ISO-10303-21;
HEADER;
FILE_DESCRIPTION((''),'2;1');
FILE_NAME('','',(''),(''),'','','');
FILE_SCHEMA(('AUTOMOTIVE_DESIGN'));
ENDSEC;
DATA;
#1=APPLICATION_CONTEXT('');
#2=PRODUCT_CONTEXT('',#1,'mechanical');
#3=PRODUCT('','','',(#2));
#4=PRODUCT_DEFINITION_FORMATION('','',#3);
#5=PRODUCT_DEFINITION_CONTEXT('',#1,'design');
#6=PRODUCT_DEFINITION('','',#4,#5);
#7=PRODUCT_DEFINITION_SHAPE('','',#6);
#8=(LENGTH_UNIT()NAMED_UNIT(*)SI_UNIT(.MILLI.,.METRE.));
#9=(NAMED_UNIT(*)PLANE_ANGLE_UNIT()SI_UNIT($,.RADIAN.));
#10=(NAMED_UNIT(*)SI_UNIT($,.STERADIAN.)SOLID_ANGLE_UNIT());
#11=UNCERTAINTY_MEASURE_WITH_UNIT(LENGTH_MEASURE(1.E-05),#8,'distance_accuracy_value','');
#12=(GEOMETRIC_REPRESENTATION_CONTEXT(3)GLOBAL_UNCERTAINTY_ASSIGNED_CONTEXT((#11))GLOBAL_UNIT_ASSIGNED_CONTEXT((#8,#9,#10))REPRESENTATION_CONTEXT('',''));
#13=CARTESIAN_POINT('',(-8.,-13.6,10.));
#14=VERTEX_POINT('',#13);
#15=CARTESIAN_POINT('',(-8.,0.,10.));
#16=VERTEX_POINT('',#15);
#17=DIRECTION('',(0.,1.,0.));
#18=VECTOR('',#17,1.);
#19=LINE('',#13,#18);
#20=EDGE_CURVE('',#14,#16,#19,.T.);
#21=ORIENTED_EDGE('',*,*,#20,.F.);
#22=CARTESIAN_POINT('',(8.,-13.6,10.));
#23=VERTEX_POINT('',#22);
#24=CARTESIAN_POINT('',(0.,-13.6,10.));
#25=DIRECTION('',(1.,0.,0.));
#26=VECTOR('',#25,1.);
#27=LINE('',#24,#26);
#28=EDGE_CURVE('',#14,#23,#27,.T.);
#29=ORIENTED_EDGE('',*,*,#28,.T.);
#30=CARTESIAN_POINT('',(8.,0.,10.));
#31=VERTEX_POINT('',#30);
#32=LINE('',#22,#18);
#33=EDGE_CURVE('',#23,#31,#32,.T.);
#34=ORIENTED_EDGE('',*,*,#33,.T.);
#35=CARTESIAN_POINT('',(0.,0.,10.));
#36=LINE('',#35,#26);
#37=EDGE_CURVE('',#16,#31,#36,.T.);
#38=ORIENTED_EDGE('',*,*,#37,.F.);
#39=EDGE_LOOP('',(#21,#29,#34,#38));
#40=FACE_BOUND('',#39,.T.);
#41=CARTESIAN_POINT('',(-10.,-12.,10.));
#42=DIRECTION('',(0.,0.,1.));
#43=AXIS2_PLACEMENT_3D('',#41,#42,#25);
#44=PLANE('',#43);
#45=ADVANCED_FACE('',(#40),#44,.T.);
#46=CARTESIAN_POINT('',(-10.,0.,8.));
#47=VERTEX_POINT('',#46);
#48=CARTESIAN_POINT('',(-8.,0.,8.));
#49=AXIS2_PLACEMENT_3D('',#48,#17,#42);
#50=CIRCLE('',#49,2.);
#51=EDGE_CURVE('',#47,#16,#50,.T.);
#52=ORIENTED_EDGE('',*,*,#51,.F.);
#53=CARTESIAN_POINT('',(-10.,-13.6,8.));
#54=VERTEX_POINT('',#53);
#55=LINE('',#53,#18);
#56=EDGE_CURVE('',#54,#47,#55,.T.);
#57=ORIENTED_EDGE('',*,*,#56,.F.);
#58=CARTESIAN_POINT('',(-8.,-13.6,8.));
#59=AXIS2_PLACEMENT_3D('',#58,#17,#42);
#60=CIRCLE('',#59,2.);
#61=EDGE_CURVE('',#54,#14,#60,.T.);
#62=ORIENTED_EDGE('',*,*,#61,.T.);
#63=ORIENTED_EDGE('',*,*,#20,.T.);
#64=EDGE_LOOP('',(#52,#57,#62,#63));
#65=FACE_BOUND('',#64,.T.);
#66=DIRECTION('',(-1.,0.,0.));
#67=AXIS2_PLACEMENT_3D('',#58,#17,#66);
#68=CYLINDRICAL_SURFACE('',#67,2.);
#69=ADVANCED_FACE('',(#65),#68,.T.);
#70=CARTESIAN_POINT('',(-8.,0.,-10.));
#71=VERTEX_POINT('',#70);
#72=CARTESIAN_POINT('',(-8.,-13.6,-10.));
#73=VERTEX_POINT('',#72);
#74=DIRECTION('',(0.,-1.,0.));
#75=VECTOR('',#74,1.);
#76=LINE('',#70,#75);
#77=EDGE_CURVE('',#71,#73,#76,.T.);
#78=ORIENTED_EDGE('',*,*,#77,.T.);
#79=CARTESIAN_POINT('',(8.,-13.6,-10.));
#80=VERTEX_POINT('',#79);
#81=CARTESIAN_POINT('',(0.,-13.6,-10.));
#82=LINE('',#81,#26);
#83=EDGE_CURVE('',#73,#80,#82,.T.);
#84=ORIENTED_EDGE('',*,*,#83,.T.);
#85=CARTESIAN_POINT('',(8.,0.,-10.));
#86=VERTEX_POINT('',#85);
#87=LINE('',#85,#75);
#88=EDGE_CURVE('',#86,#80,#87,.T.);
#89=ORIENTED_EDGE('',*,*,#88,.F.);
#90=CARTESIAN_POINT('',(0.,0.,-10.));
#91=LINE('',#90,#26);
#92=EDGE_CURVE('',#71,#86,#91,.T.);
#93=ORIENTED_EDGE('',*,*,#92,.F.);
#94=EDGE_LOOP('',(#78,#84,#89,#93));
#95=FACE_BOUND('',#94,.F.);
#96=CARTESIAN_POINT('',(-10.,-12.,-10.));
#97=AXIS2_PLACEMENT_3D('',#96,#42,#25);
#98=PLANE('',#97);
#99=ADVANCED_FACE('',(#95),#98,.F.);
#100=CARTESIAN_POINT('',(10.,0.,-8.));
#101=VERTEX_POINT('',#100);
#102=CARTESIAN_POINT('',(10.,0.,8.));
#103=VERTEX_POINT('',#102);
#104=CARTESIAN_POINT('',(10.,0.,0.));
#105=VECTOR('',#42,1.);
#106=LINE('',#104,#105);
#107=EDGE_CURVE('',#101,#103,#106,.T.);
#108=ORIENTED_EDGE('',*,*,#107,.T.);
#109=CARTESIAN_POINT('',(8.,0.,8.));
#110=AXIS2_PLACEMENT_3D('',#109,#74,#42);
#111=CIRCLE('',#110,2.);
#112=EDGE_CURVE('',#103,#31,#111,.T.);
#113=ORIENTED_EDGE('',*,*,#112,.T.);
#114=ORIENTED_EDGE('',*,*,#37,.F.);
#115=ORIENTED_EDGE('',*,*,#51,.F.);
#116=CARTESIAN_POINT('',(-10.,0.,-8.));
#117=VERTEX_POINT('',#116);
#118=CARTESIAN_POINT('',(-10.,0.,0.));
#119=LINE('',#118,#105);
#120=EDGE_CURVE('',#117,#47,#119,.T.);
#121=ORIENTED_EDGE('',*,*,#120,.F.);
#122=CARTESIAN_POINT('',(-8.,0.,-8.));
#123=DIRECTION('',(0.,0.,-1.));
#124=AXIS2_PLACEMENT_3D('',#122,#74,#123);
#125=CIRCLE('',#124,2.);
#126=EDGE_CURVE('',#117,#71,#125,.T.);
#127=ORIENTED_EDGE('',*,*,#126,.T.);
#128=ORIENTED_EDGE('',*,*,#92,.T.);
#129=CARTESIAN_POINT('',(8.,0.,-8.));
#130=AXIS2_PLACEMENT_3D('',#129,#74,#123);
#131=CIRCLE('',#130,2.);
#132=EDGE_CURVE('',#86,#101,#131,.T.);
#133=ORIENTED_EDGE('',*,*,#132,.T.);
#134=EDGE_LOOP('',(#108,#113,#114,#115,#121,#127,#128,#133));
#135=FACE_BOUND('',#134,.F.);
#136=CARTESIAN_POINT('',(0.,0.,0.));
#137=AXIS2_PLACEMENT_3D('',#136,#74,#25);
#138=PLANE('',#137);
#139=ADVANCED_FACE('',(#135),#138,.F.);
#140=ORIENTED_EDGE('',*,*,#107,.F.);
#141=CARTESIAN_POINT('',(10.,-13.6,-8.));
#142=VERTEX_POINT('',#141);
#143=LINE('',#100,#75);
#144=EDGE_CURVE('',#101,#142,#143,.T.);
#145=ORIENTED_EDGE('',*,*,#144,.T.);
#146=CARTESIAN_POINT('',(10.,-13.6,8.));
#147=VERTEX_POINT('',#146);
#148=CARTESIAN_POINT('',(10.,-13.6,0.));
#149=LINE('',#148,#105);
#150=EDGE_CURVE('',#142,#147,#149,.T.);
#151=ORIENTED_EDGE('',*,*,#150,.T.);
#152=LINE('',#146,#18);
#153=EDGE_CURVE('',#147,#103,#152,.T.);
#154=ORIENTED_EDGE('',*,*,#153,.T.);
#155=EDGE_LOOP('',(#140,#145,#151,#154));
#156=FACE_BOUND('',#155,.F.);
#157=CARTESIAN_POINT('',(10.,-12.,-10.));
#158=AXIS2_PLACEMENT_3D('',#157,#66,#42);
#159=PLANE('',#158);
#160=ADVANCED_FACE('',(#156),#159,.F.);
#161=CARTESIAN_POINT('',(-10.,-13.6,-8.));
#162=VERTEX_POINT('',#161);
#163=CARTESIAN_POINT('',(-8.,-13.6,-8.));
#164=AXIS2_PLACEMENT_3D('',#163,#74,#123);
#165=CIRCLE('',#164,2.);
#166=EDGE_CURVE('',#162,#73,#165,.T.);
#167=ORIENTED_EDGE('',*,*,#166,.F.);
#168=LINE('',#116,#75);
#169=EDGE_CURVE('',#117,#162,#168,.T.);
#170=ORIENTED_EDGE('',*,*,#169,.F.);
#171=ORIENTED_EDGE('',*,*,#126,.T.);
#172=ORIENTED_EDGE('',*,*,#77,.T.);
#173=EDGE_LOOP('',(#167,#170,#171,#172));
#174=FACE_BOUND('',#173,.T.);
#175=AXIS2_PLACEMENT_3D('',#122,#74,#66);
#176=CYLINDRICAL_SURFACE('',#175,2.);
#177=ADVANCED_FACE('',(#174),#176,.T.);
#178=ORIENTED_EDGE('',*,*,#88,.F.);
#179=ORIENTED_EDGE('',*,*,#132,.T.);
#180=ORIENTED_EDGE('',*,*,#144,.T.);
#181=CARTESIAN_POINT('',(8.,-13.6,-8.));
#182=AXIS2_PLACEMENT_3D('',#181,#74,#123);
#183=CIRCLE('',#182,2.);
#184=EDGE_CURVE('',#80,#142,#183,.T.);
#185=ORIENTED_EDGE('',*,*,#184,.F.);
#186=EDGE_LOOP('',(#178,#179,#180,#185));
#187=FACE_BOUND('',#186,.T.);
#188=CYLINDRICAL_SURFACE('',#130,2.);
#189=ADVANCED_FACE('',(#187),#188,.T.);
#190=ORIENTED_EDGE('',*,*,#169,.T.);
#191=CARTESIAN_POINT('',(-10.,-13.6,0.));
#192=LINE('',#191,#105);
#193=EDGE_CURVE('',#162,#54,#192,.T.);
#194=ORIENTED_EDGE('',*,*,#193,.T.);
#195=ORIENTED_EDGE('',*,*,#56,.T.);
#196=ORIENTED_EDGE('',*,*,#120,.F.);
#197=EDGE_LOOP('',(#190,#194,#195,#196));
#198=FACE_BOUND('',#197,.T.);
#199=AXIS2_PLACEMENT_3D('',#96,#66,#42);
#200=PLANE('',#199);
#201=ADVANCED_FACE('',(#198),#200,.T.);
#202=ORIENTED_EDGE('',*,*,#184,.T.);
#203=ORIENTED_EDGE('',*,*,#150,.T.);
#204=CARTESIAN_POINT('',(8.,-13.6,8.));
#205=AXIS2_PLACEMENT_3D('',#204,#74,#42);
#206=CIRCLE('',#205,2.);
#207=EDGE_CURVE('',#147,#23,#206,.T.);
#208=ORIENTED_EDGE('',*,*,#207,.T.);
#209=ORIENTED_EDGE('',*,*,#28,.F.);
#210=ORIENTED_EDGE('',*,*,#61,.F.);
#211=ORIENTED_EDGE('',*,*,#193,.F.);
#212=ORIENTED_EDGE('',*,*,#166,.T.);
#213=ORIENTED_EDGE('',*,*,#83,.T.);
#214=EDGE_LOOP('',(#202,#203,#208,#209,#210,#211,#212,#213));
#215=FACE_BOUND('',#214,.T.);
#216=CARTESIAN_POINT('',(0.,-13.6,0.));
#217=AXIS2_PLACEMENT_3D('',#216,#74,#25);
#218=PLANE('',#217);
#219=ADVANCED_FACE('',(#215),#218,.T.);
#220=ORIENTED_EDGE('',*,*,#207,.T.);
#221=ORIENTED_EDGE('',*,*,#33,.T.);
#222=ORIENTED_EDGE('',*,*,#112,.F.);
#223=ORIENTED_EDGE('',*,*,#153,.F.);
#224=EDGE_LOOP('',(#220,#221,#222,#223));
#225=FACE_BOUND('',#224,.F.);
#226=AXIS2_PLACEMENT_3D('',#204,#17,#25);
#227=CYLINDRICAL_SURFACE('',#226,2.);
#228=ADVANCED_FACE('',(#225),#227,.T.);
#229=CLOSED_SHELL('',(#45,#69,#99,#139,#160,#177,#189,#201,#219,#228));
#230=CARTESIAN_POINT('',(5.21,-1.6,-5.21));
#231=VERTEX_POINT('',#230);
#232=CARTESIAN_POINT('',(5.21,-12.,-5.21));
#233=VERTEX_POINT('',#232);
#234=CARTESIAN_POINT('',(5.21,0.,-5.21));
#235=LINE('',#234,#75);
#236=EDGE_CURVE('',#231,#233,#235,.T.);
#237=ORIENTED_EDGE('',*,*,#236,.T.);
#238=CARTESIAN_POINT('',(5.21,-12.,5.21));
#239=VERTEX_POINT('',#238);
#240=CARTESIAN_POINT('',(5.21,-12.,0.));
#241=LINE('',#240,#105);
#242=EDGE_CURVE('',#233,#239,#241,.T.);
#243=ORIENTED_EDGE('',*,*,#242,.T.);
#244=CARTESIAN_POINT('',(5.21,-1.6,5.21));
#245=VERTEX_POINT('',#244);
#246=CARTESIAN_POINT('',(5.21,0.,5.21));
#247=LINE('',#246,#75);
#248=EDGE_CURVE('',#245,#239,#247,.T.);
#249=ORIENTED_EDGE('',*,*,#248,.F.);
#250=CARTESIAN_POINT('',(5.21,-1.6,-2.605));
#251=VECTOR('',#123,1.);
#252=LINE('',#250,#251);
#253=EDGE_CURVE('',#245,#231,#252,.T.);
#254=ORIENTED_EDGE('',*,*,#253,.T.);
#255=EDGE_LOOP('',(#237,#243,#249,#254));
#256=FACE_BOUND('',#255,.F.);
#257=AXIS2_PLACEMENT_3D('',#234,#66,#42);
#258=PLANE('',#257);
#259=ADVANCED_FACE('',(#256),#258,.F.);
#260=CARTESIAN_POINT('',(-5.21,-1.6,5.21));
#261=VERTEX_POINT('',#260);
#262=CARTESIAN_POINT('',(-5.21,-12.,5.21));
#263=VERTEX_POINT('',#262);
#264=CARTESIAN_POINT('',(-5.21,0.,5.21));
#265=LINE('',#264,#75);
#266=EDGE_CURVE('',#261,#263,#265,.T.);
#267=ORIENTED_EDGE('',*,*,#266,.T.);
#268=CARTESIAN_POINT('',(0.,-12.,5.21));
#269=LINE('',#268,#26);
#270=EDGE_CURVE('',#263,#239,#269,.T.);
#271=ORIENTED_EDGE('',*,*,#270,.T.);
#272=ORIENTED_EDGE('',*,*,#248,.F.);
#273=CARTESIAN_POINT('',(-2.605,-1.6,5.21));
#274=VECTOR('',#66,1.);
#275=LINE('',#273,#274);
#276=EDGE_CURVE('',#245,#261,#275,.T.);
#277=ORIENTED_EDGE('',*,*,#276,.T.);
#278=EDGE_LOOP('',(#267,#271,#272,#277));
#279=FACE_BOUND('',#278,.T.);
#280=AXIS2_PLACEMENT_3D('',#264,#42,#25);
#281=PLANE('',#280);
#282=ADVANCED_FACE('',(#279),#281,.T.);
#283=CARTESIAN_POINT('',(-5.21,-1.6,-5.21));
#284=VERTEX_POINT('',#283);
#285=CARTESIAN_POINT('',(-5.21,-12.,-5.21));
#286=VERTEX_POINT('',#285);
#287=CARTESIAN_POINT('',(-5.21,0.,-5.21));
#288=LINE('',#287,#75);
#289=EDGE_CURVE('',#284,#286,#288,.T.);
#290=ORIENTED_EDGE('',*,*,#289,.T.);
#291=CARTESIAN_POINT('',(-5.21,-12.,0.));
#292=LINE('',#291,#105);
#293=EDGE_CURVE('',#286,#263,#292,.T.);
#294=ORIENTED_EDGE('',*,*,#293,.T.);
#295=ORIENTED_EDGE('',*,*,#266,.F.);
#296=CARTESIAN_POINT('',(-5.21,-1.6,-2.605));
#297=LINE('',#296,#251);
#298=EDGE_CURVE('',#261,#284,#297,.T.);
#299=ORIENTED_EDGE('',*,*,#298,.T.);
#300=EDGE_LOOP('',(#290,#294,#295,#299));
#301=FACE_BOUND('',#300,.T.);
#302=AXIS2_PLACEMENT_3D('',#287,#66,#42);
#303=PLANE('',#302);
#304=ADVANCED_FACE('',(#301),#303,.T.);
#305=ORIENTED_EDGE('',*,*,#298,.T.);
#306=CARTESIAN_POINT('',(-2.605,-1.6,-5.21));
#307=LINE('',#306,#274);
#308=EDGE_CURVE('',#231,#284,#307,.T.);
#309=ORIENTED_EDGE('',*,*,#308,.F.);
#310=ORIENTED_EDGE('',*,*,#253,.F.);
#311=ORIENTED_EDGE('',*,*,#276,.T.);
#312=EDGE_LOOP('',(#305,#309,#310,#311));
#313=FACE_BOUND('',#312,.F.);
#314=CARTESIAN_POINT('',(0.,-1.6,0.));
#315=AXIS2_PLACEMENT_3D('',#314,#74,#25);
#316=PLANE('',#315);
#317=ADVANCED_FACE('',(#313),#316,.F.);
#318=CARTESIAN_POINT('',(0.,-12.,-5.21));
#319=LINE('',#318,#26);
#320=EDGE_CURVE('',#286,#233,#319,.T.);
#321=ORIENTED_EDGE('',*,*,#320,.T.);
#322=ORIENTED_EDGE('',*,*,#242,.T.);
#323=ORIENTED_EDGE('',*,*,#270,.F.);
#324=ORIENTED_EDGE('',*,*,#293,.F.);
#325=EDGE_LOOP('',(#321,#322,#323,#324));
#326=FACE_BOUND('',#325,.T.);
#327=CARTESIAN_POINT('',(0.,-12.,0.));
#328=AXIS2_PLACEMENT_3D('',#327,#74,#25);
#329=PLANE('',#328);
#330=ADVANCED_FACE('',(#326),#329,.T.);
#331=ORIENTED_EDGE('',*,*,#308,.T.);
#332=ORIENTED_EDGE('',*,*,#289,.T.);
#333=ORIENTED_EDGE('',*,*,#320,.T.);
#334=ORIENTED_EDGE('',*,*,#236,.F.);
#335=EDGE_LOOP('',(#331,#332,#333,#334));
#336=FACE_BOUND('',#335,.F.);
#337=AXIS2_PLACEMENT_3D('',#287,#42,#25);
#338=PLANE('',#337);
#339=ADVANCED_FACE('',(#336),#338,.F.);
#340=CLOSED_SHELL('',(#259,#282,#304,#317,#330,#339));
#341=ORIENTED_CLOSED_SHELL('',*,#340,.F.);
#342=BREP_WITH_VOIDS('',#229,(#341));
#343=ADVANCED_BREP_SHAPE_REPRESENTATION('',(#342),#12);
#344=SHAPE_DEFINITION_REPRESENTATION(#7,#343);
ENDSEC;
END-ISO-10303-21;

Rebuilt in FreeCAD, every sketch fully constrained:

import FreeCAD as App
import Part
import Sketcher

V = App.Vector


def edges_at(feature, points):
    """Names of the edges that pass closest to the given points."""
    edges = feature.Shape.Edges
    near = lambda p: min(range(len(edges)), key=lambda i: edges[i].distToShape(Part.Vertex(*p))[0])
    return sorted({f"Edge{near(p) + 1}" for p in points})


def add_polygon(sketch, points):
    """Adds a closed chain of lines whose ends are joined by coincident constraints."""
    first, n = sketch.GeometryCount, len(points)
    for a, b in zip(points, points[1:] + points[:1]):
        sketch.addGeometry(Part.LineSegment(App.Vector(*a, 0), App.Vector(*b, 0)), False)
    for i in range(n):
        sketch.addConstraint(Sketcher.Constraint("Coincident", first + i, 2, first + (i + 1) % n, 1))

doc = App.newDocument("Part")
body = doc.addObject("PartDesign::Body", "Body")

sketch1 = body.newObject("Sketcher::SketchObject", "Sketch")
sketch1.AttachmentSupport = (doc.getObject("XZ_Plane"), [""])
sketch1.MapMode = "FlatFace"
add_polygon(sketch1, [(-10, 10), (-10, -10), (10, -10), (10, 10)])
sketch1.addConstraint(Sketcher.Constraint("Vertical", 0))
sketch1.addConstraint(Sketcher.Constraint("Horizontal", 1))
sketch1.addConstraint(Sketcher.Constraint("Vertical", 2))
sketch1.addConstraint(Sketcher.Constraint("Horizontal", 3))
sketch1.addConstraint(Sketcher.Constraint("Symmetric", 0, 2, 2, 2, -1, 1))
sketch1.addConstraint(Sketcher.Constraint("Equal", 3, 0))
sketch1.addConstraint(Sketcher.Constraint("DistanceX", 1, 1, 1, 2, 20.0))
pad1 = body.newObject("PartDesign::Pad", "Pad")
pad1.Profile = sketch1
pad1.Length = 1.6

sketch2 = body.newObject("Sketcher::SketchObject", "Sketch001")
sketch2.AttachmentSupport = (doc.getObject("XZ_Plane"), [""])
sketch2.MapMode = "FlatFace"
add_polygon(sketch2, [(-10, 10), (-10, -10), (10, -10), (10, 10)])
add_polygon(sketch2, [(5, -5), (-5, -5), (-5, 5), (5, 5)])
sketch2.addConstraint(Sketcher.Constraint("Vertical", 0))
sketch2.addConstraint(Sketcher.Constraint("Horizontal", 1))
sketch2.addConstraint(Sketcher.Constraint("Vertical", 2))
sketch2.addConstraint(Sketcher.Constraint("Horizontal", 3))
sketch2.addConstraint(Sketcher.Constraint("Horizontal", 4))
sketch2.addConstraint(Sketcher.Constraint("Vertical", 5))
sketch2.addConstraint(Sketcher.Constraint("Horizontal", 6))
sketch2.addConstraint(Sketcher.Constraint("Vertical", 7))
sketch2.addConstraint(Sketcher.Constraint("Symmetric", 0, 2, 2, 2, -1, 1))
sketch2.addConstraint(Sketcher.Constraint("Symmetric", 4, 2, 6, 2, -1, 1))
sketch2.addConstraint(Sketcher.Constraint("Equal", 3, 0))
sketch2.addConstraint(Sketcher.Constraint("Equal", 6, 5))
sketch2.addConstraint(Sketcher.Constraint("DistanceX", 1, 1, 1, 2, 20.0))
sketch2.addConstraint(Sketcher.Constraint("DistanceX", 4, 2, 4, 1, 10.42))
pad2 = body.newObject("PartDesign::Pad", "Pad001")
pad2.Profile = sketch2
pad2.Length = 12

sketch3 = body.newObject("Sketcher::SketchObject", "Sketch002")
sketch3.AttachmentSupport = (doc.getObject("XZ_Plane"), [""])
sketch3.MapMode = "FlatFace"
sketch3.AttachmentOffset = App.Placement(V(0, 0, 12), App.Rotation())
add_polygon(sketch3, [(-10, 10), (-10, -10), (10, -10), (10, 10)])
sketch3.addConstraint(Sketcher.Constraint("Vertical", 0))
sketch3.addConstraint(Sketcher.Constraint("Horizontal", 1))
sketch3.addConstraint(Sketcher.Constraint("Vertical", 2))
sketch3.addConstraint(Sketcher.Constraint("Horizontal", 3))
sketch3.addConstraint(Sketcher.Constraint("Symmetric", 0, 2, 2, 2, -1, 1))
sketch3.addConstraint(Sketcher.Constraint("Equal", 3, 0))
sketch3.addConstraint(Sketcher.Constraint("DistanceX", 1, 1, 1, 2, 20.0))
pad3 = body.newObject("PartDesign::Pad", "Pad002")
pad3.Profile = sketch3
pad3.Length = 1.6
doc.recompute()

fillet = body.newObject("PartDesign::Fillet", "Fillet")
fillet.Base = (pad3, edges_at(pad3, [
    (-10, -6.8, -10),
    (10, -6.8, -10),
    (10, -6.8, 10),
    (-10, -6.8, 10),
]))
fillet.Radius = 2

doc.recompute()
